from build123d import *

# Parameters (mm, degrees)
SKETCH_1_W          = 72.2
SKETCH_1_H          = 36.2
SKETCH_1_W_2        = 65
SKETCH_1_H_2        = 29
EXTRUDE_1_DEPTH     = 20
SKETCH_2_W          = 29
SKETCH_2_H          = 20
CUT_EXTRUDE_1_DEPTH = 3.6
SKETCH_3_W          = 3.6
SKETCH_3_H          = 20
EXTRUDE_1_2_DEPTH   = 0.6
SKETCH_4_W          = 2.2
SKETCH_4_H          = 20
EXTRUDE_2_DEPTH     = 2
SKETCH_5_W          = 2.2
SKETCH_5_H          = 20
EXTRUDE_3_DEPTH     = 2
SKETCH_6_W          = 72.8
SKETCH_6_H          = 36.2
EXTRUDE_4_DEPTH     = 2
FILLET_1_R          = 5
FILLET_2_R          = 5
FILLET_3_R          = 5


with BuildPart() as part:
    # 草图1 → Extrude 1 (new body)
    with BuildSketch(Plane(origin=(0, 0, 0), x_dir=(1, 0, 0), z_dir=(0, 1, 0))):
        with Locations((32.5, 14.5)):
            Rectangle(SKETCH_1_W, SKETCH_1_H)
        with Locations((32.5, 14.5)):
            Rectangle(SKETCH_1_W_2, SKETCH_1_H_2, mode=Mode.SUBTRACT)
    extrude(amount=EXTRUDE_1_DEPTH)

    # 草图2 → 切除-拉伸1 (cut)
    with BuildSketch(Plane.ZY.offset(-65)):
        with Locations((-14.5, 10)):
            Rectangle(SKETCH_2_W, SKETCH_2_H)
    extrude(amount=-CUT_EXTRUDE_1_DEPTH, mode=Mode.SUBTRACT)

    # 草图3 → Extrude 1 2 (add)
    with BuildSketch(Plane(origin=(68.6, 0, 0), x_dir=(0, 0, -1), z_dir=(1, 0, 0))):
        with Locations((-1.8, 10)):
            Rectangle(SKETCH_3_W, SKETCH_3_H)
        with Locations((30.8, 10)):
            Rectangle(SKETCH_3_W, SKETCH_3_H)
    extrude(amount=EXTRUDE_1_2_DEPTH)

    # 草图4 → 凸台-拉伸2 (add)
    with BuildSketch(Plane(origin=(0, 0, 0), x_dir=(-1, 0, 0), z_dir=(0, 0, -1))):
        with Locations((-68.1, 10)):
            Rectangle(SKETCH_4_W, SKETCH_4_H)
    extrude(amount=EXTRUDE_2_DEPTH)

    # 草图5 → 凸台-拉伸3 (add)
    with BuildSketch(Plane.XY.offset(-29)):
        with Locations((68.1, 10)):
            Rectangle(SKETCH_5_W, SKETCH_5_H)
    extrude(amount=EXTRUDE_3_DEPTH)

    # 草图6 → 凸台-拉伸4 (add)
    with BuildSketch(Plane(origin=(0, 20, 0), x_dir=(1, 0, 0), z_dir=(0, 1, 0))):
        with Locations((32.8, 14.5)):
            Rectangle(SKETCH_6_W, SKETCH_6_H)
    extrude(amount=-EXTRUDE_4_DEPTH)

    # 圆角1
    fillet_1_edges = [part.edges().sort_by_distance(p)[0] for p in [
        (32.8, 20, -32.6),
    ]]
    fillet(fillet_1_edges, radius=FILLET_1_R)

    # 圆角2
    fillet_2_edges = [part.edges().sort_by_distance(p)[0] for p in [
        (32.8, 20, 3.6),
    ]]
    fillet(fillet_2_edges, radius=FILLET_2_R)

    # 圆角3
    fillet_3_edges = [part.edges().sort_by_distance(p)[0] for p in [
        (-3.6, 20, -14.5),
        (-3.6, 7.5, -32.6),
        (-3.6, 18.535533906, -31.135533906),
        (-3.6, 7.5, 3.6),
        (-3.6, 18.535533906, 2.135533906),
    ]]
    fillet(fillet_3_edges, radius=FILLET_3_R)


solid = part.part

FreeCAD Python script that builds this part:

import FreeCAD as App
import Part
import Sketcher


def edges_at(feature, points):
    """Names of the edges that pass closest to the given points."""
    edges = feature.Shape.Edges
    near = lambda p: min(range(len(edges)), key=lambda i: edges[i].distToShape(Part.Vertex(*p))[0])
    return sorted({f"Edge{near(p) + 1}" for p in points})

doc = App.newDocument("Part")
body = doc.addObject("PartDesign::Body", "Body")

# Sketch on XZ plane
sketch1 = body.newObject("Sketcher::SketchObject", "Sketch")
sketch1.AttachmentSupport = (doc.getObject("XZ_Plane"), [""])
sketch1.MapMode = "FlatFace"
sketch1.addGeometry([
    Part.LineSegment(App.Vector(-4, -33, 0), App.Vector(-4, 4, 0)),  # 0
    Part.LineSegment(App.Vector(-4, 4, 0), App.Vector(69, 4, 0)),  # 1
    Part.LineSegment(App.Vector(69, 4, 0), App.Vector(69, -33, 0)),  # 2
    Part.LineSegment(App.Vector(69, -33, 0), App.Vector(-4, -33, 0)),  # 3
    Part.LineSegment(App.Vector(65, 0, 0), App.Vector(0, 0, 0)),  # 4
    Part.LineSegment(App.Vector(0, 0, 0), App.Vector(0, -29, 0)),  # 5
    Part.LineSegment(App.Vector(0, -29, 0), App.Vector(65, -29, 0)),  # 6
    Part.LineSegment(App.Vector(65, -29, 0), App.Vector(65, 0, 0)),  # 7
], False)
sketch1.addConstraint([
    Sketcher.Constraint("Coincident", 0, 2, 1, 1),
    Sketcher.Constraint("Coincident", 1, 2, 2, 1),
    Sketcher.Constraint("Coincident", 2, 2, 3, 1),
    Sketcher.Constraint("Coincident", 3, 2, 0, 1),
    Sketcher.Constraint("Coincident", 4, 2, 5, 1),
    Sketcher.Constraint("Coincident", 5, 2, 6, 1),
    Sketcher.Constraint("Coincident", 6, 2, 7, 1),
    Sketcher.Constraint("Coincident", 7, 2, 4, 1),
    Sketcher.Constraint("Vertical", 0),
    Sketcher.Constraint("Horizontal", 1),
    Sketcher.Constraint("Vertical", 2),
    Sketcher.Constraint("Horizontal", 3),
    Sketcher.Constraint("Horizontal", 4),
    Sketcher.Constraint("Vertical", 5),
    Sketcher.Constraint("Horizontal", 6),
    Sketcher.Constraint("Vertical", 7),
    Sketcher.Constraint("Coincident", 4, 2, -1, 1),
    Sketcher.Constraint("DistanceX", 4, 2, 4, 1, 65.0),
    Sketcher.Constraint("DistanceY", 5, 2, 5, 1, 29.0),
    Sketcher.Constraint("DistanceX", 1, 1, 1, 2, 72.2),
    Sketcher.Constraint("DistanceY", 0, 1, 0, 2, 36.2),
    Sketcher.Constraint("DistanceX", 0, 2, -1, 1, 3.6),
    Sketcher.Constraint("DistanceY", -1, 1, 0, 2, 3.6),
])
pad1 = body.newObject("PartDesign::Pad", "Pad")
pad1.Profile = sketch1
pad1.Length = 20
pad1.Reversed = True

# Sketch on YZ plane
sketch2 = body.newObject("Sketcher::SketchObject", "Sketch001")
sketch2.AttachmentSupport = (doc.getObject("YZ_Plane"), [""])
sketch2.MapMode = "FlatFace"
sketch2.AttachmentOffset = App.Placement(App.Vector(0, 0, 65), App.Rotation())
sketch2.addGeometry([
    Part.LineSegment(App.Vector(20, -29, 0), App.Vector(0, -29, 0)),
    Part.LineSegment(App.Vector(0, -29, 0), App.Vector(0, 0, 0)),
    Part.LineSegment(App.Vector(0, 0, 0), App.Vector(20, 0, 0)),
    Part.LineSegment(App.Vector(20, 0, 0), App.Vector(20, -29, 0)),
], False)
sketch2.addConstraint([
    Sketcher.Constraint("Coincident", 0, 2, 1, 1),
    Sketcher.Constraint("Coincident", 1, 2, 2, 1),
    Sketcher.Constraint("Coincident", 2, 2, 3, 1),
    Sketcher.Constraint("Coincident", 3, 2, 0, 1),
    Sketcher.Constraint("Horizontal", 0),
    Sketcher.Constraint("Vertical", 1),
    Sketcher.Constraint("Horizontal", 2),
    Sketcher.Constraint("Vertical", 3),
    Sketcher.Constraint("Coincident", 1, 2, -1, 1),
    Sketcher.Constraint("DistanceX", 0, 2, 0, 1, 20.0),
    Sketcher.Constraint("DistanceY", 1, 1, 1, 2, 29.0),
])
pocket1 = body.newObject("PartDesign::Pocket", "Pocket")
pocket1.Profile = sketch2
pocket1.Length = 3.6
pocket1.Reversed = True

# Sketch on YZ plane
sketch3 = body.newObject("Sketcher::SketchObject", "Sketch002")
sketch3.AttachmentSupport = (doc.getObject("YZ_Plane"), [""])
sketch3.MapMode = "FlatFace"
sketch3.AttachmentOffset = App.Placement(App.Vector(0, 0, 68.6), App.Rotation())
sketch3.addGeometry([
    Part.LineSegment(App.Vector(20, 3.6, 0), App.Vector(0, 3.6, 0)),  # 0
    Part.LineSegment(App.Vector(0, 3.6, 0), App.Vector(0, 0, 0)),  # 1
    Part.LineSegment(App.Vector(0, 0, 0), App.Vector(20, 0, 0)),  # 2
    Part.LineSegment(App.Vector(20, 0, 0), App.Vector(20, 3.6, 0)),  # 3
    Part.LineSegment(App.Vector(20, -29, 0), App.Vector(0, -29, 0)),  # 4
    Part.LineSegment(App.Vector(0, -29, 0), App.Vector(0, -32.6, 0)),  # 5
    Part.LineSegment(App.Vector(0, -32.6, 0), App.Vector(20, -32.6, 0)),  # 6
    Part.LineSegment(App.Vector(20, -32.6, 0), App.Vector(20, -29, 0)),  # 7
], False)
sketch3.addConstraint([
    Sketcher.Constraint("Coincident", 0, 2, 1, 1),
    Sketcher.Constraint("Coincident", 1, 2, 2, 1),
    Sketcher.Constraint("Coincident", 2, 2, 3, 1),
    Sketcher.Constraint("Coincident", 3, 2, 0, 1),
    Sketcher.Constraint("Coincident", 4, 2, 5, 1),
    Sketcher.Constraint("Coincident", 5, 2, 6, 1),
    Sketcher.Constraint("Coincident", 6, 2, 7, 1),
    Sketcher.Constraint("Coincident", 7, 2, 4, 1),
    Sketcher.Constraint("Horizontal", 0),
    Sketcher.Constraint("Vertical", 1),
    Sketcher.Constraint("Horizontal", 2),
    Sketcher.Constraint("Vertical", 3),
    Sketcher.Constraint("Horizontal", 4),
    Sketcher.Constraint("Vertical", 5),
    Sketcher.Constraint("Horizontal", 6),
    Sketcher.Constraint("Vertical", 7),
    Sketcher.Constraint("Coincident", 1, 2, -1, 1),
    Sketcher.Constraint("PointOnObject", 4, 2, -2),
    Sketcher.Constraint("Vertical", 3, 2, 6, 2),
    Sketcher.Constraint("Equal", 3, 5),
    Sketcher.Constraint("DistanceX", 0, 2, 0, 1, 20.0),
    Sketcher.Constraint("DistanceY", 1, 2, 1, 1, 3.6),
    Sketcher.Constraint("DistanceY", 4, 2, -1, 1, 29.0),
])
pad2 = body.newObject("PartDesign::Pad", "Pad001")
pad2.Profile = sketch3
pad2.Length = 0.6

# Sketch on XY plane
sketch4 = body.newObject("Sketcher::SketchObject", "Sketch003")
sketch4.AttachmentSupport = (doc.getObject("XY_Plane"), [""])
sketch4.MapMode = "FlatFace"
sketch4.addGeometry([
    Part.LineSegment(App.Vector(69.2, 20, 0), App.Vector(69.2, 0, 0)),
    Part.LineSegment(App.Vector(69.2, 0, 0), App.Vector(67, 0, 0)),
    Part.LineSegment(App.Vector(67, 0, 0), App.Vector(67, 20, 0)),
    Part.LineSegment(App.Vector(67, 20, 0), App.Vector(69.2, 20, 0)),
], False)
sketch4.addConstraint([
    Sketcher.Constraint("Coincident", 0, 2, 1, 1),
    Sketcher.Constraint("Coincident", 1, 2, 2, 1),
    Sketcher.Constraint("Coincident", 2, 2, 3, 1),
    Sketcher.Constraint("Coincident", 3, 2, 0, 1),
    Sketcher.Constraint("Vertical", 0),
    Sketcher.Constraint("Horizontal", 1),
    Sketcher.Constraint("Vertical", 2),
    Sketcher.Constraint("Horizontal", 3),
    Sketcher.Constraint("PointOnObject", 0, 2, -1),
    Sketcher.Constraint("DistanceY", 0, 2, 0, 1, 20.0),
    Sketcher.Constraint("DistanceX", 1, 2, 1, 1, 2.2),
    Sketcher.Constraint("DistanceX", -1, 1, 1, 2, 67.0),
])
pad3 = body.newObject("PartDesign::Pad", "Pad002")
pad3.Profile = sketch4
pad3.Length = 2
pad3.Reversed = True

# Sketch on XY plane
sketch5 = body.newObject("Sketcher::SketchObject", "Sketch004")
sketch5.AttachmentSupport = (doc.getObject("XY_Plane"), [""])
sketch5.MapMode = "FlatFace"
sketch5.AttachmentOffset = App.Placement(App.Vector(0, 0, -29), App.Rotation())
sketch5.addGeometry([
    Part.LineSegment(App.Vector(67, 20, 0), App.Vector(67, 0, 0)),
    Part.LineSegment(App.Vector(67, 0, 0), App.Vector(69.2, 0, 0)),
    Part.LineSegment(App.Vector(69.2, 0, 0), App.Vector(69.2, 20, 0)),
    Part.LineSegment(App.Vector(69.2, 20, 0), App.Vector(67, 20, 0)),
], False)
sketch5.addConstraint([
    Sketcher.Constraint("Coincident", 0, 2, 1, 1),
    Sketcher.Constraint("Coincident", 1, 2, 2, 1),
    Sketcher.Constraint("Coincident", 2, 2, 3, 1),
    Sketcher.Constraint("Coincident", 3, 2, 0, 1),
    Sketcher.Constraint("Vertical", 0),
    Sketcher.Constraint("Horizontal", 1),
    Sketcher.Constraint("Vertical", 2),
    Sketcher.Constraint("Horizontal", 3),
    Sketcher.Constraint("PointOnObject", 0, 2, -1),
    Sketcher.Constraint("DistanceY", 0, 2, 0, 1, 20.0),
    Sketcher.Constraint("DistanceX", 1, 1, 1, 2, 2.2),
    Sketcher.Constraint("DistanceX", -1, 1, 0, 2, 67.0),
])
pad4 = body.newObject("PartDesign::Pad", "Pad003")
pad4.Profile = sketch5
pad4.Length = 2

# Sketch on XZ plane
sketch6 = body.newObject("Sketcher::SketchObject", "Sketch005")
sketch6.AttachmentSupport = (doc.getObject("XZ_Plane"), [""])
sketch6.MapMode = "FlatFace"
sketch6.AttachmentOffset = App.Placement(App.Vector(0, 0, -20), App.Rotation())
sketch6.addGeometry([
    Part.LineSegment(App.Vector(-4, -33, 0), App.Vector(-4, 4, 0)),
    Part.LineSegment(App.Vector(-4, 4, 0), App.Vector(69, 4, 0)),
    Part.LineSegment(App.Vector(69, 4, 0), App.Vector(69, -33, 0)),
    Part.LineSegment(App.Vector(69, -33, 0), App.Vector(-4, -33, 0)),
], False)
sketch6.addConstraint([
    Sketcher.Constraint("Coincident", 0, 2, 1, 1),
    Sketcher.Constraint("Coincident", 1, 2, 2, 1),
    Sketcher.Constraint("Coincident", 2, 2, 3, 1),
    Sketcher.Constraint("Coincident", 3, 2, 0, 1),
    Sketcher.Constraint("Vertical", 0),
    Sketcher.Constraint("Horizontal", 1),
    Sketcher.Constraint("Vertical", 2),
    Sketcher.Constraint("Horizontal", 3),
    Sketcher.Constraint("DistanceX", 1, 1, 1, 2, 72.8),
    Sketcher.Constraint("DistanceY", 0, 1, 0, 2, 36.2),
    Sketcher.Constraint("DistanceX", 0, 2, -1, 1, 3.6),
    Sketcher.Constraint("DistanceY", -1, 1, 0, 2, 3.6),
])
pad5 = body.newObject("PartDesign::Pad", "Pad004")
pad5.Profile = sketch6
pad5.Length = 2
doc.recompute()

fillet = body.newObject("PartDesign::Fillet", "Fillet")
fillet.Base = (pad5, edges_at(pad5, [(32.8, 20, -32.6)]))
fillet.Radius = 5
doc.recompute()

fillet2 = body.newObject("PartDesign::Fillet", "Fillet001")
fillet2.Base = (fillet, edges_at(fillet, [(32.8, 20, 3.6)]))
fillet2.Radius = 5
doc.recompute()

fillet3 = body.newObject("PartDesign::Fillet", "Fillet002")
fillet3.Base = (fillet2, edges_at(fillet2, [
    (-3.6, 20, -14.5),
    (-3.6, 7.5, -32.6),
    (-3.6, 18.536, -31.136),
    (-3.6, 7.5, 3.6),
    (-3.6, 18.536, 2.136),
]))
fillet3.Radius = 5

doc.recompute()
